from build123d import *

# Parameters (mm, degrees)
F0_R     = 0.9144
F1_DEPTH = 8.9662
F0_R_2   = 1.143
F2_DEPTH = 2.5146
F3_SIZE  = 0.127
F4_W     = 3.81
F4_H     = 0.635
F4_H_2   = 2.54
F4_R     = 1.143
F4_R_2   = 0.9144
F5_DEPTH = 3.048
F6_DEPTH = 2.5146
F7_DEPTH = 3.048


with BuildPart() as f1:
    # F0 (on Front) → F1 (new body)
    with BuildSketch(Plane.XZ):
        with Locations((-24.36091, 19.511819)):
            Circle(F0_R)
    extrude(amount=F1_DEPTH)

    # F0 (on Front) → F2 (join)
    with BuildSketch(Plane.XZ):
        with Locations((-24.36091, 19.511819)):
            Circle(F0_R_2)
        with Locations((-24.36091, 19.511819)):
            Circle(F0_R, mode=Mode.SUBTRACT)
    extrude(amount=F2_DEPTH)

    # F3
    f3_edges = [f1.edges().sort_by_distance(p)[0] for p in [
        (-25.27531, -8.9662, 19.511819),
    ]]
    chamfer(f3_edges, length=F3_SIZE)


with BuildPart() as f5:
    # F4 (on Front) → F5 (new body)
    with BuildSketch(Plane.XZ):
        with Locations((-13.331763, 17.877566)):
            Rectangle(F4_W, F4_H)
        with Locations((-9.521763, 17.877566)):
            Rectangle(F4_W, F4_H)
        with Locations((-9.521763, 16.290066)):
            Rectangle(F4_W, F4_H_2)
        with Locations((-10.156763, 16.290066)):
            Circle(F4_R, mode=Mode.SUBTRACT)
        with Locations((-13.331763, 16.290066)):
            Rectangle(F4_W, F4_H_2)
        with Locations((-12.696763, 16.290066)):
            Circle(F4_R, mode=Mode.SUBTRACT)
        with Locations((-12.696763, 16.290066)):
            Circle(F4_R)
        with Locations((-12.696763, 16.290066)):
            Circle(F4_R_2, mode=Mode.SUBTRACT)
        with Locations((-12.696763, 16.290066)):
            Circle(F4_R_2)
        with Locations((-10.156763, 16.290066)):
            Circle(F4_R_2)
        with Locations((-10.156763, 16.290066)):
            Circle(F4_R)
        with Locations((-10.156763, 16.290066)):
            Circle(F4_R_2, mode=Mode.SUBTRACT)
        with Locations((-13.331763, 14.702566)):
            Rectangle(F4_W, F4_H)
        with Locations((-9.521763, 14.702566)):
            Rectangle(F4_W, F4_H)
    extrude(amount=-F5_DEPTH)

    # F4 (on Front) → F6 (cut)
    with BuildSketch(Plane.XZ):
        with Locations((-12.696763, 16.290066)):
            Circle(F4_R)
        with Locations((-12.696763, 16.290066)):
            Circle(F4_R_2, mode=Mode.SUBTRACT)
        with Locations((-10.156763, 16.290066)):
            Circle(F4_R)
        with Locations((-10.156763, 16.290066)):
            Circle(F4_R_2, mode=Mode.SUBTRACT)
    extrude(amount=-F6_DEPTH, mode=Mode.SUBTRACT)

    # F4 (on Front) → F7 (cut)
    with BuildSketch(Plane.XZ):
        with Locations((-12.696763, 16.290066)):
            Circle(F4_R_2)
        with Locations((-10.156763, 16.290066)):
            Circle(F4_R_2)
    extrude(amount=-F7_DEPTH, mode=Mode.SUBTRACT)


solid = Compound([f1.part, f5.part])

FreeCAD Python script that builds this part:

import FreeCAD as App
import Part
import Sketcher
Q = App.Units.Quantity


def edges_at(feature, points):
    """Names of the edges that pass closest to the given points."""
    edges = feature.Shape.Edges
    near = lambda p: min(range(len(edges)), key=lambda i: edges[i].distToShape(Part.Vertex(*p))[0])
    return sorted({f"Edge{near(p) + 1}" for p in points})


def add_polygon(sketch, points):
    """Adds a closed chain of lines whose ends are joined by coincident constraints."""
    first, n = sketch.GeometryCount, len(points)
    for a, b in zip(points, points[1:] + points[:1]):
        sketch.addGeometry(Part.LineSegment(App.Vector(*a, 0), App.Vector(*b, 0)), False)
    for i in range(n):
        sketch.addConstraint(Sketcher.Constraint("Coincident", first + i, 2, first + (i + 1) % n, 1))

doc = App.newDocument("Part")
body = doc.addObject("PartDesign::Body", "Body")

sketch1 = doc.addObject("Sketcher::SketchObject", "Sketch")
body.addObject(sketch1)
sketch1.AttachmentSupport = (doc.XZ_Plane, [""])
sketch1.MapMode = "FlatFace"
sketch1.addGeometry(Part.Circle(App.Vector(-24.4, 19.5, 0), App.Vector(0, 0, 1), 0.9), False)
sketch1.addConstraint([
    Sketcher.Constraint("Diameter", 0, Q("0.072 in")),
    Sketcher.Constraint("DistanceX", 0, 3, -1, 1, 24.36091),
    Sketcher.Constraint("DistanceY", -1, 1, 0, 3, 19.511819),
])
pad1 = doc.addObject("PartDesign::Pad", "Pad")
body.addObject(pad1)
pad1.Profile = sketch1
pad1.Length = Q("0.353 in")

sketch2 = doc.addObject("Sketcher::SketchObject", "Sketch001")
body.addObject(sketch2)
sketch2.AttachmentSupport = (doc.XZ_Plane, [""])
sketch2.MapMode = "FlatFace"
sketch2.addGeometry([
    Part.Circle(App.Vector(-24.4, 19.5, 0), App.Vector(0, 0, 1), 1.1),
    Part.Circle(App.Vector(-24.4, 19.5, 0), App.Vector(0, 0, 1), 0.9),
], False)
sketch2.addConstraint([
    Sketcher.Constraint("Coincident", 1, 3, 0, 3),
    Sketcher.Constraint("Diameter", 0, Q("0.09 in")),
    Sketcher.Constraint("Diameter", 1, Q("0.072 in")),
    Sketcher.Constraint("DistanceX", 0, 3, -1, 1, 24.36091),
    Sketcher.Constraint("DistanceY", -1, 1, 0, 3, 19.511819),
])
pad2 = doc.addObject("PartDesign::Pad", "Pad001")
body.addObject(pad2)
pad2.Profile = sketch2
pad2.Length = Q("0.099 in")
doc.recompute()

chamfer = doc.addObject("PartDesign::Chamfer", "Chamfer")
body.addObject(chamfer)
chamfer.Base = (pad2, edges_at(pad2, [(-25.275, -8.966, 19.512)]))
chamfer.Size = Q("0.005 in")
body2 = doc.addObject("PartDesign::Body", "Body001")

sketch3 = doc.addObject("Sketcher::SketchObject", "Sketch002")
body2.addObject(sketch3)
sketch3.AttachmentSupport = (doc.getObject("XZ_Plane001"), [""])
sketch3.MapMode = "FlatFace"
add_polygon(sketch3, [(-15.2, 18.2), (-15.2, 14.4), (-7.6, 14.4), (-7.6, 18.2)])
sketch3.addGeometry(Part.Circle(App.Vector(-10.2, 16.3, 0), App.Vector(0, 0, 1), 0.9), False)
sketch3.addConstraint([
    Sketcher.Constraint("Vertical", 0),
    Sketcher.Constraint("Horizontal", 1),
    Sketcher.Constraint("Vertical", 2),
    Sketcher.Constraint("Horizontal", 3),
    Sketcher.Constraint("Diameter", 4, Q("0.072 in")),
    Sketcher.Constraint("DistanceX", 1, 1, 1, 2, Q("0.3 in")),
    Sketcher.Constraint("DistanceY", 0, 2, 0, 1, Q("0.15 in")),
    Sketcher.Constraint("DistanceX", 0, 2, 4, 3, Q("0.2 in")),
    Sketcher.Constraint("DistanceY", 0, 2, 4, 3, Q("0.075 in")),
    Sketcher.Constraint("DistanceX", 4, 3, -1, 1, 10.156763),
    Sketcher.Constraint("DistanceY", -1, 1, 4, 3, 16.290066),
])
pad3 = doc.addObject("PartDesign::Pad", "Pad002")
body2.addObject(pad3)
pad3.Profile = sketch3
pad3.Length = Q("0.12 in")
pad3.Reversed = True

sketch4 = doc.addObject("Sketcher::SketchObject", "Sketch003")
body2.addObject(sketch4)
sketch4.AttachmentSupport = (doc.getObject("XZ_Plane001"), [""])
sketch4.MapMode = "FlatFace"
sketch4.addGeometry([
    Part.Circle(App.Vector(-12.7, 16.3, 0), App.Vector(0, 0, 1), 1.1),
    Part.Circle(App.Vector(-12.7, 16.3, 0), App.Vector(0, 0, 1), 0.9),
    Part.Circle(App.Vector(-10.2, 16.3, 0), App.Vector(0, 0, 1), 1.1),
    Part.Circle(App.Vector(-10.2, 16.3, 0), App.Vector(0, 0, 1), 0.9),
], False)
sketch4.addConstraint([
    Sketcher.Constraint("Coincident", 1, 3, 0, 3),
    Sketcher.Constraint("Coincident", 3, 3, 2, 3),
    Sketcher.Constraint("Equal", 0, 2),
    Sketcher.Constraint("Equal", 1, 3),
    Sketcher.Constraint("Horizontal", 1, 3, 2, 3),
    Sketcher.Constraint("Diameter", 0, Q("0.09 in")),
    Sketcher.Constraint("Diameter", 1, Q("0.072 in")),
    Sketcher.Constraint("DistanceX", 0, 3, 2, 3, Q("0.1 in")),
    Sketcher.Constraint("DistanceX", 0, 3, -1, 1, 12.696763),
    Sketcher.Constraint("DistanceY", -1, 1, 0, 3, 16.290066),
])
pocket1 = doc.addObject("PartDesign::Pocket", "Pocket")
body2.addObject(pocket1)
pocket1.Profile = sketch4
pocket1.Length = Q("0.099 in")

sketch5 = doc.addObject("Sketcher::SketchObject", "Sketch004")
body2.addObject(sketch5)
sketch5.AttachmentSupport = (doc.getObject("XZ_Plane001"), [""])
sketch5.MapMode = "FlatFace"
sketch5.addGeometry([
    Part.Circle(App.Vector(-12.7, 16.3, 0), App.Vector(0, 0, 1), 0.9),
    Part.Circle(App.Vector(-10.2, 16.3, 0), App.Vector(0, 0, 1), 0.9),
], False)
sketch5.addConstraint([
    Sketcher.Constraint("Equal", 0, 1),
    Sketcher.Constraint("Horizontal", 0, 3, 1, 3),
    Sketcher.Constraint("Diameter", 0, Q("0.072 in")),
    Sketcher.Constraint("DistanceX", 0, 3, 1, 3, Q("0.1 in")),
    Sketcher.Constraint("DistanceX", 0, 3, -1, 1, 12.696763),
    Sketcher.Constraint("DistanceY", -1, 1, 0, 3, 16.290066),
])
pocket2 = doc.addObject("PartDesign::Pocket", "Pocket001")
body2.addObject(pocket2)
pocket2.Profile = sketch5
pocket2.Length = Q("0.12 in")

doc.recompute()
